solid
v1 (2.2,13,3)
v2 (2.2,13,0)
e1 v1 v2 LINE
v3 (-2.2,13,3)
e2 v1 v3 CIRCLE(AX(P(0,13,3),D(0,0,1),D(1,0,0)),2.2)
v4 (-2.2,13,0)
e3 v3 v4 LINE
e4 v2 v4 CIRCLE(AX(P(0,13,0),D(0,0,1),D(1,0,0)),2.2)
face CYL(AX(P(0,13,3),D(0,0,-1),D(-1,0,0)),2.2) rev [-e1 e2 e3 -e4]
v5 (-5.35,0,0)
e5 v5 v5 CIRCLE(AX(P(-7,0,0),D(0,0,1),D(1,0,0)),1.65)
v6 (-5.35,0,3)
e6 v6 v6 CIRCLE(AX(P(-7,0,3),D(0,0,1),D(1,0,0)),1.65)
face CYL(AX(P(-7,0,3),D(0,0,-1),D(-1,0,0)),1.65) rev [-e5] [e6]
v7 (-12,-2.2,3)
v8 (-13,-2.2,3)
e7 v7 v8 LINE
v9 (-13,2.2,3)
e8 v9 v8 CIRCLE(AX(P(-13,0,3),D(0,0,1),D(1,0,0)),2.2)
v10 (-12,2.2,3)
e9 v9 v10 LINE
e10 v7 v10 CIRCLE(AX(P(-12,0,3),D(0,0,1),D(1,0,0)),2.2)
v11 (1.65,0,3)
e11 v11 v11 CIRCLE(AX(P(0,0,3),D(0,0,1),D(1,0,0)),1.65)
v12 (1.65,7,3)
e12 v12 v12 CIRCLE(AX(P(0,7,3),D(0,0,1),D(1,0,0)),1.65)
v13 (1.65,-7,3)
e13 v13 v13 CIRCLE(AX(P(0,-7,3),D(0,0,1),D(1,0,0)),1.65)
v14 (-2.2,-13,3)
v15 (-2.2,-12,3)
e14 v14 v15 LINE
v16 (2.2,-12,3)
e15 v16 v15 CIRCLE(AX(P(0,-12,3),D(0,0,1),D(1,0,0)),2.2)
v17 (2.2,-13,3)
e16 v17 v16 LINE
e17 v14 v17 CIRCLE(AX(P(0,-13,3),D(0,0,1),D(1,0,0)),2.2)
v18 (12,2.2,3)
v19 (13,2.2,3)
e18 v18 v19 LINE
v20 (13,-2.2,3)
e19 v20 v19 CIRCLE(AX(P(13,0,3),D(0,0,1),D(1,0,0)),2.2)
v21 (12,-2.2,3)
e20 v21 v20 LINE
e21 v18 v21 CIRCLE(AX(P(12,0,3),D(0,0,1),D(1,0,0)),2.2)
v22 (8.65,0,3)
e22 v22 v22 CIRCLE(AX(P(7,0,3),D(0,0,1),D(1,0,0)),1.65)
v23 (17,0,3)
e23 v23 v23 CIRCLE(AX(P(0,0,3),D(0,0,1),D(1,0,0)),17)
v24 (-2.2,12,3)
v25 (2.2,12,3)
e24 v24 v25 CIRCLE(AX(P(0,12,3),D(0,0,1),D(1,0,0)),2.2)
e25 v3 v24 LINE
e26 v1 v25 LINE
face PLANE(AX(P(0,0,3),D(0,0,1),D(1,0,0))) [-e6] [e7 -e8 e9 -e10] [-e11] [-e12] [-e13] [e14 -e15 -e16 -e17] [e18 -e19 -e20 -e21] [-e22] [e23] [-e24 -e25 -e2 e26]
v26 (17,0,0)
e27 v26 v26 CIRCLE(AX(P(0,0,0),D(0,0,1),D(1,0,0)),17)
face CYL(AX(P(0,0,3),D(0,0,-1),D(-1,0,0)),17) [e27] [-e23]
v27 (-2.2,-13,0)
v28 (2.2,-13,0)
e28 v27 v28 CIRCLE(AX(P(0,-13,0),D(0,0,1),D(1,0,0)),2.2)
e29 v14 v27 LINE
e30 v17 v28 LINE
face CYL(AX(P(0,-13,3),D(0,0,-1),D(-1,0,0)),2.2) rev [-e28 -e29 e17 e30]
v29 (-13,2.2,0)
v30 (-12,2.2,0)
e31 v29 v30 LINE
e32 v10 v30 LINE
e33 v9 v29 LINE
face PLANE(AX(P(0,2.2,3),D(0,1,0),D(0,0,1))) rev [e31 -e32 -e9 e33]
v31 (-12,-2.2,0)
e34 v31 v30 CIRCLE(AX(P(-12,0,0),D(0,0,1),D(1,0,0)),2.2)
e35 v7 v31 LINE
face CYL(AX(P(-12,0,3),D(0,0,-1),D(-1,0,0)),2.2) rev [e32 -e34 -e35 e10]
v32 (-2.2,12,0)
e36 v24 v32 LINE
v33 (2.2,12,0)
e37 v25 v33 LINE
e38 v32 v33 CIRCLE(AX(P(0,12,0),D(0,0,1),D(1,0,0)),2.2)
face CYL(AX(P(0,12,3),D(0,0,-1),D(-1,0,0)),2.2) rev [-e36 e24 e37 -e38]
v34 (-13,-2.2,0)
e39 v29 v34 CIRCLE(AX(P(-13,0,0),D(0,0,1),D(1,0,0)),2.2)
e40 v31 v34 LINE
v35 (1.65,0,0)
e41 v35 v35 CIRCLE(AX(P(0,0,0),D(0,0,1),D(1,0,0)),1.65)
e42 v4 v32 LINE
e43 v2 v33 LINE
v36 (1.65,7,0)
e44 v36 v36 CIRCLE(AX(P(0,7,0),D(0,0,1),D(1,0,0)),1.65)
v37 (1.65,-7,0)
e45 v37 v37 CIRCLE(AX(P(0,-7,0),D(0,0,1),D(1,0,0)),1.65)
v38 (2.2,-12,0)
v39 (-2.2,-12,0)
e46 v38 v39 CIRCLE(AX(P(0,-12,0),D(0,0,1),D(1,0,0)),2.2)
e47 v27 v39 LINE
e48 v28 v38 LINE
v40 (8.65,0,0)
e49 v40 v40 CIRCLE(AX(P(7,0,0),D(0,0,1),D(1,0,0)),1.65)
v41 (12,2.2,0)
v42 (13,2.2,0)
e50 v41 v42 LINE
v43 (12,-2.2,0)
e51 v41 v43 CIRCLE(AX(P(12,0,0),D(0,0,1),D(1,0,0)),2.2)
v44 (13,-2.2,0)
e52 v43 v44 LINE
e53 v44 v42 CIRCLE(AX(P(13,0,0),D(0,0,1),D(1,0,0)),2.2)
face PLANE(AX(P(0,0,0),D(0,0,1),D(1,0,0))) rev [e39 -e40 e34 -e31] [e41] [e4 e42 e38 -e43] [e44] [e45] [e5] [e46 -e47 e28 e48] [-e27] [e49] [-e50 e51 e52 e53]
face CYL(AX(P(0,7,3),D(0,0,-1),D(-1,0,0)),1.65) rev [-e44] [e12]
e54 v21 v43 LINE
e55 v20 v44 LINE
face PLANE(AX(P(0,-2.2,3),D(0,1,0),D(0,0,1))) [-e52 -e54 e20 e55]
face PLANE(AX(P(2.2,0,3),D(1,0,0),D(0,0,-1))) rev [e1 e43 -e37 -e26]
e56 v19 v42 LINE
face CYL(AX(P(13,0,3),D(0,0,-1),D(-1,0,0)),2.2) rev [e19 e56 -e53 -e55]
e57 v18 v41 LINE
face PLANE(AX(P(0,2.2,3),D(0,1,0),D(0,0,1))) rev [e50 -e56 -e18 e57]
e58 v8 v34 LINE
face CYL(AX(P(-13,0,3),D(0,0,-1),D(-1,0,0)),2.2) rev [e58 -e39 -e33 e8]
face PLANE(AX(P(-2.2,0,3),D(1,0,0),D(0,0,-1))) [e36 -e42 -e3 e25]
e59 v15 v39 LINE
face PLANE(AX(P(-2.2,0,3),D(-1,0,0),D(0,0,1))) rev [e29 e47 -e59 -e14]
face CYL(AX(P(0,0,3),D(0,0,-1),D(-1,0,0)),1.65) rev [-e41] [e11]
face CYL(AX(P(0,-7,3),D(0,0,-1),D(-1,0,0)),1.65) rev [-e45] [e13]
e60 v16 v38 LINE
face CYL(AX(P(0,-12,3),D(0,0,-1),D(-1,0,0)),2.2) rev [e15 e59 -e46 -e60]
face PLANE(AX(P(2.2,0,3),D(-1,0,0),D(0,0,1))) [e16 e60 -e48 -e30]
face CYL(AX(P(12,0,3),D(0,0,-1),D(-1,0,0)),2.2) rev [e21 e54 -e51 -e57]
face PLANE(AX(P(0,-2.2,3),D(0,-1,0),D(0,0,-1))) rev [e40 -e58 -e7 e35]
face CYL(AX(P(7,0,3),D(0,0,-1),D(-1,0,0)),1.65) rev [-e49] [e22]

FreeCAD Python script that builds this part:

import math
import FreeCAD as App
import Part
import Sketcher
from FreeCAD import Vector
Q = App.Units.Quantity

doc = App.newDocument("Part")
body = doc.addObject("PartDesign::Body", "Body")

# Sketch on XY plane
sketch1 = body.newObject("Sketcher::SketchObject", "Sketch")
sketch1.AttachmentSupport = (doc.getObject("XY_Plane"), [""])
sketch1.MapMode = "FlatFace"
sketch1.addGeometry([
    Part.Circle(Vector(0, 0, 0), Vector(0, 0, 1), 17),  # 0
    Part.LineSegment(Vector(2.2, -12, 0), Vector(2.2, -13, 0)),  # 1
    Part.ArcOfCircle(Part.Circle(Vector(0, -13, 0), Vector(0, 0, 1), 2.2), math.radians(180), math.radians(360)),  # 2
    Part.LineSegment(Vector(-2.2, -13, 0), Vector(-2.2, -12, 0)),  # 3
    Part.ArcOfCircle(Part.Circle(Vector(0, -12, 0), Vector(0, 0, 1), 2.2), math.radians(0), math.radians(180)),  # 4
    Part.LineSegment(Vector(-12, -2.2, 0), Vector(-13, -2.2, 0)),  # 5
    Part.ArcOfCircle(Part.Circle(Vector(-13, 0, 0), Vector(0, 0, 1), 2.2), math.radians(90), math.radians(270)),  # 6
    Part.LineSegment(Vector(-13, 2.2, 0), Vector(-12, 2.2, 0)),  # 7
    Part.ArcOfCircle(Part.Circle(Vector(-12, 0, 0), Vector(0, 0, 1), 2.2), math.radians(0), math.radians(90)),  # 8
    Part.ArcOfCircle(Part.Circle(Vector(-12, 0, 0), Vector(0, 0, 1), 2.2), math.radians(-90), math.radians(0)),  # 9
    Part.Circle(Vector(0, -7, 0), Vector(0, 0, 1), 1.6),  # 10
    Part.Circle(Vector(-7, 0, 0), Vector(0, 0, 1), 1.6),  # 11
    Part.Circle(Vector(0, 0, 0), Vector(0, 0, 1), 1.6),  # 12
    Part.Circle(Vector(7, 0, 0), Vector(0, 0, 1), 1.6),  # 13
    Part.ArcOfCircle(Part.Circle(Vector(13, 0, 0), Vector(0, 0, 1), 2.2), math.radians(-90), math.radians(0)),  # 14
    Part.LineSegment(Vector(13, -2.2, 0), Vector(12, -2.2, 0)),  # 15
    Part.ArcOfCircle(Part.Circle(Vector(12, 0, 0), Vector(0, 0, 1), 2.2), math.radians(90), math.radians(270)),  # 16
    Part.LineSegment(Vector(12, 2.2, 0), Vector(13, 2.2, 0)),  # 17
    Part.ArcOfCircle(Part.Circle(Vector(13, 0, 0), Vector(0, 0, 1), 2.2), math.radians(0), math.radians(90)),  # 18
    Part.Circle(Vector(0, 7, 0), Vector(0, 0, 1), 1.6),  # 19
    Part.ArcOfCircle(Part.Circle(Vector(0, 12, 0), Vector(0, 0, 1), 2.2), math.radians(180), math.radians(360)),  # 20
    Part.LineSegment(Vector(-2.2, 12, 0), Vector(-2.2, 13, 0)),  # 21
    Part.ArcOfCircle(Part.Circle(Vector(0, 13, 0), Vector(0, 0, 1), 2.2), math.radians(0), math.radians(180)),  # 22
    Part.LineSegment(Vector(2.2, 13, 0), Vector(2.2, 12, 0)),  # 23
], False)
sketch1.addConstraint([
    Sketcher.Constraint("Tangent", 1, 2, 2, 2),
    Sketcher.Constraint("Tangent", 2, 1, 3, 1),
    Sketcher.Constraint("Tangent", 3, 2, 4, 2),
    Sketcher.Constraint("Tangent", 4, 1, 1, 1),
    Sketcher.Constraint("Tangent", 5, 2, 6, 2),
    Sketcher.Constraint("Tangent", 6, 1, 7, 1),
    Sketcher.Constraint("Tangent", 7, 2, 8, 2),
    Sketcher.Constraint("Tangent", 8, 1, 9, 2),
    Sketcher.Constraint("Tangent", 9, 1, 5, 1),
    Sketcher.Constraint("Tangent", 14, 1, 15, 1),
    Sketcher.Constraint("Tangent", 15, 2, 16, 2),
    Sketcher.Constraint("Tangent", 16, 1, 17, 1),
    Sketcher.Constraint("Tangent", 17, 2, 18, 2),
    Sketcher.Constraint("Tangent", 18, 1, 14, 2),
    Sketcher.Constraint("Tangent", 20, 1, 21, 1),
    Sketcher.Constraint("Tangent", 21, 2, 22, 2),
    Sketcher.Constraint("Tangent", 22, 1, 23, 1),
    Sketcher.Constraint("Tangent", 23, 2, 20, 2),
    Sketcher.Constraint("Vertical", 1),
    Sketcher.Constraint("Vertical", 3),
    Sketcher.Constraint("Horizontal", 5),
    Sketcher.Constraint("Horizontal", 7),
    Sketcher.Constraint("Horizontal", 15),
    Sketcher.Constraint("Horizontal", 17),
    Sketcher.Constraint("Vertical", 21),
    Sketcher.Constraint("Vertical", 23),
    Sketcher.Constraint("Coincident", 0, 3, -1, 1),
    Sketcher.Constraint("Coincident", 12, 3, -1, 1),
    Sketcher.Constraint("Equal", 4, 6),
    Sketcher.Constraint("Equal", 6, 8),
    Sketcher.Constraint("Equal", 10, 11),
    Sketcher.Constraint("Equal", 11, 12),
    Sketcher.Constraint("Equal", 12, 13),
    Sketcher.Constraint("Equal", 9, 14),
    Sketcher.Constraint("Equal", 14, 16),
    Sketcher.Constraint("Equal", 13, 19),
    Sketcher.Constraint("Equal", 18, 20),
    Sketcher.Constraint("Symmetric", 11, 3, 13, 3, -1, 1),
    Sketcher.Constraint("Symmetric", 6, 3, 14, 3, -1, 1),
    Sketcher.Constraint("Symmetric", 10, 3, 19, 3, -1, 1),
    Sketcher.Constraint("Symmetric", 4, 3, 20, 3, -1, 1),
    Sketcher.Constraint("Symmetric", 8, 3, 16, 3, -2),
    Sketcher.Constraint("Symmetric", 2, 3, 22, 3, -1),
    Sketcher.Constraint("PointOnObject", 10, 3, -2),
    Sketcher.Constraint("PointOnObject", 11, 3, -1),
    Sketcher.Constraint("PointOnObject", 8, 1, -1),
    Sketcher.Constraint("PointOnObject", 18, 1, -1),
    Sketcher.Constraint("Equal", 17, 1),
    Sketcher.Constraint("Diameter", 0, Q("34 mm")),
    Sketcher.Constraint("Diameter", 10, Q("3.3 mm")),
    Sketcher.Constraint("Radius", 2, Q("2.2 mm")),
    Sketcher.Constraint("DistanceX", 5, 2, 5, 1, Q("1 mm")),
    Sketcher.Constraint("DistanceY", 2, 3, -1, 1, Q("13 mm")),
    Sketcher.Constraint("DistanceX", 6, 3, -1, 1, Q("13 mm")),
    Sketcher.Constraint("DistanceY", 10, 3, -1, 1, Q("7 mm")),
    Sketcher.Constraint("DistanceX", 11, 3, -1, 1, Q("7 mm")),
])
pad1 = body.newObject("PartDesign::Pad", "Pad")
pad1.Profile = sketch1
pad1.Length = 3

doc.recompute()
